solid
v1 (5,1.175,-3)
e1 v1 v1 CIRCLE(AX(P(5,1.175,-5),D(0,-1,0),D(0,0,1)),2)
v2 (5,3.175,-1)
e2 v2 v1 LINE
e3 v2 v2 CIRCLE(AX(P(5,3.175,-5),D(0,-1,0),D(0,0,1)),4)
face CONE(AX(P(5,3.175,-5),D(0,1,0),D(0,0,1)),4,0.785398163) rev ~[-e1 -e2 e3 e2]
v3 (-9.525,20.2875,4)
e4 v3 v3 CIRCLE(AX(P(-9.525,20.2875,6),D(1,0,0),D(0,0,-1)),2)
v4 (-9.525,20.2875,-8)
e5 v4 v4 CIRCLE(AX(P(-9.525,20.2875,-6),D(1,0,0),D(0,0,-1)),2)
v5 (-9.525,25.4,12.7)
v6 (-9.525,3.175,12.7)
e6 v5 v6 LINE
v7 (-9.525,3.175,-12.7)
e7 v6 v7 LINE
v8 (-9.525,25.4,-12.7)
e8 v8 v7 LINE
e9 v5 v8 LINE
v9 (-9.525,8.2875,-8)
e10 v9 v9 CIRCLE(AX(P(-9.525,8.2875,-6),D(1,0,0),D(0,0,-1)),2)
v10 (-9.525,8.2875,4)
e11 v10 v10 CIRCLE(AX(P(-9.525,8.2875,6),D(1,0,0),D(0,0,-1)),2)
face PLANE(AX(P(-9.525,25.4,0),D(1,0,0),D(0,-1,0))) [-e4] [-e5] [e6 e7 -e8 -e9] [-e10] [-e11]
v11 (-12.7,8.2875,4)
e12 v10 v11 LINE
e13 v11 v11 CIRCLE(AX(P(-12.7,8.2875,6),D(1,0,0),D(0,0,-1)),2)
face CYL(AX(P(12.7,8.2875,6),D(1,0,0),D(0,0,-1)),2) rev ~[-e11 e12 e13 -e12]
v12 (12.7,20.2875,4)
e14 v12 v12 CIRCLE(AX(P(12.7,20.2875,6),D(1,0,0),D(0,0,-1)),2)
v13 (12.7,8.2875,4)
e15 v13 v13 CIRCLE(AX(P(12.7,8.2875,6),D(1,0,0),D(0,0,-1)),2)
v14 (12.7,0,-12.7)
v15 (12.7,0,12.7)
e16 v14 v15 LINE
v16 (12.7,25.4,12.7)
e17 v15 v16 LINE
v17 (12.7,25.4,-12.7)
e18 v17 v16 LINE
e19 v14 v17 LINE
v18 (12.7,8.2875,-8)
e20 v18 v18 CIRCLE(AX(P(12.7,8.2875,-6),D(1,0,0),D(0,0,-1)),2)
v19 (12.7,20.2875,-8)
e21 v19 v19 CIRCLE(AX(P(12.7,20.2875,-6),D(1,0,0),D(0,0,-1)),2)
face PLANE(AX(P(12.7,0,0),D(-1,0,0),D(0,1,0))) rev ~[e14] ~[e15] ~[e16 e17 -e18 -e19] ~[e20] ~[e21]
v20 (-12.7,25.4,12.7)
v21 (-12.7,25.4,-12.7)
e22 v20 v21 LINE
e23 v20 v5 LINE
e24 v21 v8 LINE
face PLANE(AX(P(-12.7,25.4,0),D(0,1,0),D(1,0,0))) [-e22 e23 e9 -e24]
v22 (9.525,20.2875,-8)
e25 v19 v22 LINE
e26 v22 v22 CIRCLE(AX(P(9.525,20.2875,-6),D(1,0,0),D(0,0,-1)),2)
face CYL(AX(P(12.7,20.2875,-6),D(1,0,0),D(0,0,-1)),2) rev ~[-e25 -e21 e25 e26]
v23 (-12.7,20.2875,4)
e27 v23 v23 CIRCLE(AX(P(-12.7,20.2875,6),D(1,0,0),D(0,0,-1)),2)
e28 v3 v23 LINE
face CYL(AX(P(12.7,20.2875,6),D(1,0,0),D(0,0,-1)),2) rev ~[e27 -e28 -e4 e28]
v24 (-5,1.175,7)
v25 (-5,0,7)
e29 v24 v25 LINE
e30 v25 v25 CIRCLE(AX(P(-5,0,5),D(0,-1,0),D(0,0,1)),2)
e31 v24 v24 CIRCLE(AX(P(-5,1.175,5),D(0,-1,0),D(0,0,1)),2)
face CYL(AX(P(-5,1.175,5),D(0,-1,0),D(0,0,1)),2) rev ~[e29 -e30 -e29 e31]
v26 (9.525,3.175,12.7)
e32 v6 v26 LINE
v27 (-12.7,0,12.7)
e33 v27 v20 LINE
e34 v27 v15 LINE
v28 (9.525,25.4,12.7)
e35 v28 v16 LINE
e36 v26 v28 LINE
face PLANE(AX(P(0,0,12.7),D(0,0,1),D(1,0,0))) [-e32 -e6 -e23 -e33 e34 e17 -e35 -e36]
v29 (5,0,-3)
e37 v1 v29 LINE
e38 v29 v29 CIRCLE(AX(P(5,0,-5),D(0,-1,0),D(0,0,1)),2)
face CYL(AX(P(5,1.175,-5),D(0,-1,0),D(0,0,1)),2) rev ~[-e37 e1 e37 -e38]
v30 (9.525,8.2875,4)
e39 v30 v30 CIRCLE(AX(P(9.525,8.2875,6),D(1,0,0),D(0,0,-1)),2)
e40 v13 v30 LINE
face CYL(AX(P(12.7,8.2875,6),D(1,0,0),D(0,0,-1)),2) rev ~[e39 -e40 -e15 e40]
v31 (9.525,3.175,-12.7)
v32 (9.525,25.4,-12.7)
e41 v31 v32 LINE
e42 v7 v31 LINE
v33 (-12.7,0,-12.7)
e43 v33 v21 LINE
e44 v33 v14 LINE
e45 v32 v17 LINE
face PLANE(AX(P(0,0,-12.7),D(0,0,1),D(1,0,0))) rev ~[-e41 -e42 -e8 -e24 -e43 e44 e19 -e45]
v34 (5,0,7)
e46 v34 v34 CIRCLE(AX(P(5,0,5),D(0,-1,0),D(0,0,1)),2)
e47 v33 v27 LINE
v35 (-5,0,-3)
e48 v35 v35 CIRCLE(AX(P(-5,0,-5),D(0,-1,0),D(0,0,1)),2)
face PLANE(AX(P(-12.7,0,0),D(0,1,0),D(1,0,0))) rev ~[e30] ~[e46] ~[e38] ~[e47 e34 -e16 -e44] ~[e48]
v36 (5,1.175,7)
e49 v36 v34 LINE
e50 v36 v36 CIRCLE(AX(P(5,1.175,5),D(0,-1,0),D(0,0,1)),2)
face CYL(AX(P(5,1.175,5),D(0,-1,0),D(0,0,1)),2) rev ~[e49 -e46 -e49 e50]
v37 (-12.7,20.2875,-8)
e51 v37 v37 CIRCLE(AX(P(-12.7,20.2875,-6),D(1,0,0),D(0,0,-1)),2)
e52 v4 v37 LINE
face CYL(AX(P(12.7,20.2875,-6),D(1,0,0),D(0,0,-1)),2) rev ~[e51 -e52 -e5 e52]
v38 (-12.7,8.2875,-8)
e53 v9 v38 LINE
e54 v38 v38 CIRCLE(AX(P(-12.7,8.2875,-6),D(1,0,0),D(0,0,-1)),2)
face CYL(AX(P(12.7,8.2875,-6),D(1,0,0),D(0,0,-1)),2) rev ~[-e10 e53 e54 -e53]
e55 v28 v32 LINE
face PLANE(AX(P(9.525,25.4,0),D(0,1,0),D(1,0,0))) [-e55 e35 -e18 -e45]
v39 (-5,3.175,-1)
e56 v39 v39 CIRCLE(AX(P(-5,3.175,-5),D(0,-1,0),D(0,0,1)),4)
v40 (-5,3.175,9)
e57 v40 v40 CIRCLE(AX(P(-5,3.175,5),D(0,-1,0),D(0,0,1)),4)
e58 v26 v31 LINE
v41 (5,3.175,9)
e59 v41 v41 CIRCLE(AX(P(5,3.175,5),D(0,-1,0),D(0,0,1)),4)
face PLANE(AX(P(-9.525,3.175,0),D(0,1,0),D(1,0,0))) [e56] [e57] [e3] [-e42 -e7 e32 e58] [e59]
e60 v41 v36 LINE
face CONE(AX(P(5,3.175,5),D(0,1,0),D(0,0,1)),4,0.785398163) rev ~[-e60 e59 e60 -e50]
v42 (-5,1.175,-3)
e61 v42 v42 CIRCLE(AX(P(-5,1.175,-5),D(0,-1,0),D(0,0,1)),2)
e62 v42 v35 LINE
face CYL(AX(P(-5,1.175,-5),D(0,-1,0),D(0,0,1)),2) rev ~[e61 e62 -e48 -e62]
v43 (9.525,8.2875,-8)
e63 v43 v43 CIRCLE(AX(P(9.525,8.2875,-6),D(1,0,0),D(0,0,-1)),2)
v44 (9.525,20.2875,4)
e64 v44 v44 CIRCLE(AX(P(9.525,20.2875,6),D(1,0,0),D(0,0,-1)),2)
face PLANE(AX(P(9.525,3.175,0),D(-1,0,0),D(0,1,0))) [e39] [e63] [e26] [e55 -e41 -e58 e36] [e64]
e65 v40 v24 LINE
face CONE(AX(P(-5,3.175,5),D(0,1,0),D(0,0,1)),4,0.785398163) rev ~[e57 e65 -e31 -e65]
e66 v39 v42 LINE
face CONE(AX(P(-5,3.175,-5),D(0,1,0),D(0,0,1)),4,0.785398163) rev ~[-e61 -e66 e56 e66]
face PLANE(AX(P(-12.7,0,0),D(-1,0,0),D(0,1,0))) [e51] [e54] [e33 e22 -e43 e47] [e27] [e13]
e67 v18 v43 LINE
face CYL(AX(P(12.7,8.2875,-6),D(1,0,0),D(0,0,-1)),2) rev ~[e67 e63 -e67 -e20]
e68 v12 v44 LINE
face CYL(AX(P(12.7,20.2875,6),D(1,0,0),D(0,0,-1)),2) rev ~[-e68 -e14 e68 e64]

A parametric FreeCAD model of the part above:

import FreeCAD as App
import Part
import Sketcher
Q = App.Units.Quantity

doc = App.newDocument("Part")
body = doc.addObject("PartDesign::Body", "Body")

sketch1 = body.newObject("Sketcher::SketchObject", "Sketch")
sketch1.AttachmentSupport = (doc.getObject("XY_Plane"), [""])
sketch1.MapMode = "FlatFace"
sketch1.addGeometry(Part.LineSegment(App.Vector(-12.7, 25.4, 0), App.Vector(-12.7, 0, 0)), False)
sketch1.addGeometry(Part.LineSegment(App.Vector(-12.7, 0, 0), App.Vector(12.7, 0, 0)), False)
sketch1.addGeometry(Part.LineSegment(App.Vector(12.7, 0, 0), App.Vector(12.7, 25.4, 0)), False)
sketch1.addGeometry(Part.LineSegment(App.Vector(12.7, 25.4, 0), App.Vector(9.5, 25.4, 0)), False)
sketch1.addGeometry(Part.LineSegment(App.Vector(9.5, 25.4, 0), App.Vector(9.5, 3.2, 0)), False)
sketch1.addGeometry(Part.LineSegment(App.Vector(9.5, 3.2, 0), App.Vector(-9.5, 3.2, 0)), False)
sketch1.addGeometry(Part.LineSegment(App.Vector(-9.5, 3.2, 0), App.Vector(-9.5, 25.4, 0)), False)
sketch1.addGeometry(Part.LineSegment(App.Vector(-9.5, 25.4, 0), App.Vector(-12.7, 25.4, 0)), False)
sketch1.addConstraint(Sketcher.Constraint("Coincident", 0, 2, 1, 1))
sketch1.addConstraint(Sketcher.Constraint("Coincident", 1, 2, 2, 1))
sketch1.addConstraint(Sketcher.Constraint("Coincident", 2, 2, 3, 1))
sketch1.addConstraint(Sketcher.Constraint("Coincident", 3, 2, 4, 1))
sketch1.addConstraint(Sketcher.Constraint("Coincident", 4, 2, 5, 1))
sketch1.addConstraint(Sketcher.Constraint("Coincident", 5, 2, 6, 1))
sketch1.addConstraint(Sketcher.Constraint("Coincident", 6, 2, 7, 1))
sketch1.addConstraint(Sketcher.Constraint("Coincident", 7, 2, 0, 1))
sketch1.addConstraint(Sketcher.Constraint("Vertical", 0))
sketch1.addConstraint(Sketcher.Constraint("Horizontal", 1))
sketch1.addConstraint(Sketcher.Constraint("Vertical", 2))
sketch1.addConstraint(Sketcher.Constraint("Horizontal", 3))
sketch1.addConstraint(Sketcher.Constraint("Vertical", 4))
sketch1.addConstraint(Sketcher.Constraint("Horizontal", 5))
sketch1.addConstraint(Sketcher.Constraint("Vertical", 6))
sketch1.addConstraint(Sketcher.Constraint("Horizontal", 7))
sketch1.addConstraint(Sketcher.Constraint("Symmetric", 0, 2, 1, 2, -1, 1))
sketch1.addConstraint(Sketcher.Constraint("Symmetric", 3, 2, 6, 2, -2))
sketch1.addConstraint(Sketcher.Constraint("Equal", 1, 0))
sketch1.addConstraint(Sketcher.Constraint("DistanceX", 1, 1, 1, 2, Q("1 in")))
sketch1.addConstraint(Sketcher.Constraint("DistanceX", 3, 2, 3, 1, Q("0.125 in")))
sketch1.addConstraint(Sketcher.Constraint("DistanceY", -1, 1, 4, 2, Q("0.125 in")))
pad1 = body.newObject("PartDesign::Pad", "Pad")
pad1.Profile = sketch1
pad1.Length = Q("1 in")
pad1.Midplane = True

sketch2 = body.newObject("Sketcher::SketchObject", "Sketch001")
sketch2.AttachmentSupport = (doc.getObject("XZ_Plane"), [""])
sketch2.MapMode = "FlatFace"
sketch2.AttachmentOffset = App.Placement(App.Vector(0, 0, -0.125 * 25.4), App.Rotation())
sketch2.addGeometry(Part.Circle(App.Vector(-5, 5, 0), App.Vector(0, 0, 1), 2), False)
sketch2.addGeometry(Part.Circle(App.Vector(-5, -5, 0), App.Vector(0, 0, 1), 2), False)
sketch2.addGeometry(Part.Circle(App.Vector(5, -5, 0), App.Vector(0, 0, 1), 2), False)
sketch2.addGeometry(Part.Circle(App.Vector(5, 5, 0), App.Vector(0, 0, 1), 2), False)
sketch2.addConstraint(Sketcher.Constraint("Equal", 0, 1))
sketch2.addConstraint(Sketcher.Constraint("Equal", 1, 2))
sketch2.addConstraint(Sketcher.Constraint("Equal", 2, 3))
sketch2.addConstraint(Sketcher.Constraint("Symmetric", 0, 3, 2, 3, -1, 1))
sketch2.addConstraint(Sketcher.Constraint("Symmetric", 1, 3, 3, 3, -1, 1))
sketch2.addConstraint(Sketcher.Constraint("Symmetric", 1, 3, 2, 3, -2))
sketch2.addConstraint(Sketcher.Constraint("Diameter", 0, 4.0))
sketch2.addConstraint(Sketcher.Constraint("DistanceY", 1, 3, 0, 3, Q("0.3937 in")))
sketch2.addConstraint(Sketcher.Constraint("DistanceX", 1, 3, 2, 3, Q("0.3937 in")))
doc.recompute()
hole = body.newObject("PartDesign::Hole", "Hole")
hole.Profile = sketch2
hole.ThreadType = "None"
hole.Diameter = 4
hole.DepthType = "Dimension"
hole.Depth = Q("0.125 in")
hole.DrillPoint = "Flat"
hole.HoleCutType = "Countersink"
hole.HoleCutDiameter = 8
hole.HoleCutCountersinkAngle = 90
hole.Reversed = True

sketch3 = body.newObject("Sketcher::SketchObject", "Sketch002")
sketch3.AttachmentSupport = (doc.getObject("YZ_Plane"), [""])
sketch3.MapMode = "FlatFace"
sketch3.AttachmentOffset = App.Placement(App.Vector(0, 0, 0.5 * 25.4), App.Rotation())
sketch3.addGeometry(Part.Circle(App.Vector(20.3, 6, 0), App.Vector(0, 0, 1), 2), False)
sketch3.addGeometry(Part.Circle(App.Vector(8.3, 6, 0), App.Vector(0, 0, 1), 2), False)
sketch3.addGeometry(Part.Circle(App.Vector(8.3, -6, 0), App.Vector(0, 0, 1), 2), False)
sketch3.addGeometry(Part.Circle(App.Vector(20.3, -6, 0), App.Vector(0, 0, 1), 2), False)
sketch3.addConstraint(Sketcher.Constraint("Equal", 0, 1))
sketch3.addConstraint(Sketcher.Constraint("Equal", 1, 2))
sketch3.addConstraint(Sketcher.Constraint("Equal", 2, 3))
sketch3.addConstraint(Sketcher.Constraint("Symmetric", 1, 3, 2, 3, -1))
sketch3.addConstraint(Sketcher.Constraint("Symmetric", 0, 3, 3, 3, -1))
sketch3.addConstraint(Sketcher.Constraint("Horizontal", 0, 3, 1, 3))
sketch3.addConstraint(Sketcher.Constraint("Diameter", 0, 4.0))
sketch3.addConstraint(Sketcher.Constraint("DistanceY", -1, 1, 0, 3, 6.0))
sketch3.addConstraint(Sketcher.Constraint("DistanceX", -1, 1, 0, 3, 20.2875))
sketch3.addConstraint(Sketcher.Constraint("DistanceX", -1, 1, 1, 3, 8.2875))
pocket1 = body.newObject("PartDesign::Pocket", "Pocket")
pocket1.Profile = sketch3
pocket1.Type = "ThroughAll"

doc.recompute()
